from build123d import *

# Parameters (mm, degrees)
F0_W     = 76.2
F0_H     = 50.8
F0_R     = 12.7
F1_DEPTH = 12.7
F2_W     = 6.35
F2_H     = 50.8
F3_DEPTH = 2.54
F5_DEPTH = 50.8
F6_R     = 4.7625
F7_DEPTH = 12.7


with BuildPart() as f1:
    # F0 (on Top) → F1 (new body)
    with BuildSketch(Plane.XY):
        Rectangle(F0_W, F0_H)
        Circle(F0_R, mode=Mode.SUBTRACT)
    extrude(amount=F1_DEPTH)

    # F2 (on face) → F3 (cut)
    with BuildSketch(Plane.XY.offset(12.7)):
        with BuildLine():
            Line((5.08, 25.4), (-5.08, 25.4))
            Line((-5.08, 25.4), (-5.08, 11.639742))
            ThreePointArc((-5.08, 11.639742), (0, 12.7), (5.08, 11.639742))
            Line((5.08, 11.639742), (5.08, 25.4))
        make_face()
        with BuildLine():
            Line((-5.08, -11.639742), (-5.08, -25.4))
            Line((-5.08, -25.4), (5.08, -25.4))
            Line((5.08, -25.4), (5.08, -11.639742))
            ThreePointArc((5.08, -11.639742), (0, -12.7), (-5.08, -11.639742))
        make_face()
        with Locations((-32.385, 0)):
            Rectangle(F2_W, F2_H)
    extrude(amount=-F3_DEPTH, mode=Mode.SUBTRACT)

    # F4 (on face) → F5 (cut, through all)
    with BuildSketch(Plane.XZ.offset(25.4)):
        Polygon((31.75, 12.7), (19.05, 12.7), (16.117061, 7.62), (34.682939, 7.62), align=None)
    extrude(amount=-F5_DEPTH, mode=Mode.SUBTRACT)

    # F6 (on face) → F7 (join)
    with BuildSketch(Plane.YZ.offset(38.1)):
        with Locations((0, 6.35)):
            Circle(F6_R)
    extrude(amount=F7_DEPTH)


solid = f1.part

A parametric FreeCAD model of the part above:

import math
import FreeCAD as App
import Part
import Sketcher
Q = App.Units.Quantity

doc = App.newDocument("Part")
body = doc.addObject("PartDesign::Body", "Body")

# Sketch on XY plane
sketch1 = body.newObject("Sketcher::SketchObject", "Sketch")
sketch1.AttachmentSupport = (doc.getObject("XY_Plane"), [""])
sketch1.MapMode = "FlatFace"
sketch1.addGeometry(Part.LineSegment(App.Vector(-38, 25, 0), App.Vector(-38, -25, 0)), False)
sketch1.addGeometry(Part.LineSegment(App.Vector(-38, -25, 0), App.Vector(38, -25, 0)), False)
sketch1.addGeometry(Part.LineSegment(App.Vector(38, -25, 0), App.Vector(38, 25, 0)), False)
sketch1.addGeometry(Part.LineSegment(App.Vector(38, 25, 0), App.Vector(-38, 25, 0)), False)
sketch1.addGeometry(Part.Circle(App.Vector(0, 0, 0), App.Vector(0, 0, 1), 13), False)
sketch1.addConstraint(Sketcher.Constraint("Coincident", 0, 2, 1, 1))
sketch1.addConstraint(Sketcher.Constraint("Coincident", 1, 2, 2, 1))
sketch1.addConstraint(Sketcher.Constraint("Coincident", 2, 2, 3, 1))
sketch1.addConstraint(Sketcher.Constraint("Coincident", 3, 2, 0, 1))
sketch1.addConstraint(Sketcher.Constraint("Vertical", 0))
sketch1.addConstraint(Sketcher.Constraint("Horizontal", 1))
sketch1.addConstraint(Sketcher.Constraint("Vertical", 2))
sketch1.addConstraint(Sketcher.Constraint("Horizontal", 3))
sketch1.addConstraint(Sketcher.Constraint("Coincident", 4, 3, -1, 1))
sketch1.addConstraint(Sketcher.Constraint("Symmetric", 0, 2, 2, 2, -1, 1))
sketch1.addConstraint(Sketcher.Constraint("Diameter", 4, Q("1 in")))
sketch1.addConstraint(Sketcher.Constraint("DistanceX", 1, 1, 1, 2, Q("3 in")))
sketch1.addConstraint(Sketcher.Constraint("DistanceY", 0, 2, 0, 1, Q("2 in")))
pad1 = body.newObject("PartDesign::Pad", "Pad")
pad1.Profile = sketch1
pad1.Length = Q("0.5 in")

# Sketch on XY plane
sketch2 = body.newObject("Sketcher::SketchObject", "Sketch001")
sketch2.AttachmentSupport = (doc.getObject("XY_Plane"), [""])
sketch2.MapMode = "FlatFace"
sketch2.AttachmentOffset = App.Placement(App.Vector(0, 0, 0.5 * 25.4), App.Rotation())
sketch2.addGeometry(Part.LineSegment(App.Vector(5, 25, 0), App.Vector(-5, 25, 0)), False)
sketch2.addGeometry(Part.LineSegment(App.Vector(-5, 25, 0), App.Vector(-5, 12, 0)), False)
sketch2.addGeometry(Part.ArcOfCircle(Part.Circle(App.Vector(0, 0, 0), App.Vector(0, 0, 1), 13), math.radians(66), math.radians(114)), False)
sketch2.addGeometry(Part.LineSegment(App.Vector(5, 12, 0), App.Vector(5, 25, 0)), False)
sketch2.addGeometry(Part.LineSegment(App.Vector(-5, -12, 0), App.Vector(-5, -25, 0)), False)
sketch2.addGeometry(Part.LineSegment(App.Vector(-5, -25, 0), App.Vector(5, -25, 0)), False)
sketch2.addGeometry(Part.LineSegment(App.Vector(5, -25, 0), App.Vector(5, -12, 0)), False)
sketch2.addGeometry(Part.ArcOfCircle(Part.Circle(App.Vector(0, 0, 0), App.Vector(0, 0, 1), 13), math.radians(-114), math.radians(-66)), False)
sketch2.addGeometry(Part.LineSegment(App.Vector(-36, 25, 0), App.Vector(-36, -25, 0)), False)
sketch2.addGeometry(Part.LineSegment(App.Vector(-36, -25, 0), App.Vector(-29, -25, 0)), False)
sketch2.addGeometry(Part.LineSegment(App.Vector(-29, -25, 0), App.Vector(-29, 25, 0)), False)
sketch2.addGeometry(Part.LineSegment(App.Vector(-29, 25, 0), App.Vector(-36, 25, 0)), False)
sketch2.addConstraint(Sketcher.Constraint("Coincident", 0, 2, 1, 1))
sketch2.addConstraint(Sketcher.Constraint("Coincident", 1, 2, 2, 2))
sketch2.addConstraint(Sketcher.Constraint("Coincident", 2, 1, 3, 1))
sketch2.addConstraint(Sketcher.Constraint("Coincident", 3, 2, 0, 1))
sketch2.addConstraint(Sketcher.Constraint("Coincident", 4, 2, 5, 1))
sketch2.addConstraint(Sketcher.Constraint("Coincident", 5, 2, 6, 1))
sketch2.addConstraint(Sketcher.Constraint("Coincident", 6, 2, 7, 2))
sketch2.addConstraint(Sketcher.Constraint("Coincident", 7, 1, 4, 1))
sketch2.addConstraint(Sketcher.Constraint("Coincident", 8, 2, 9, 1))
sketch2.addConstraint(Sketcher.Constraint("Coincident", 9, 2, 10, 1))
sketch2.addConstraint(Sketcher.Constraint("Coincident", 10, 2, 11, 1))
sketch2.addConstraint(Sketcher.Constraint("Coincident", 11, 2, 8, 1))
sketch2.addConstraint(Sketcher.Constraint("Horizontal", 0))
sketch2.addConstraint(Sketcher.Constraint("Vertical", 1))
sketch2.addConstraint(Sketcher.Constraint("Vertical", 3))
sketch2.addConstraint(Sketcher.Constraint("Vertical", 4))
sketch2.addConstraint(Sketcher.Constraint("Horizontal", 5))
sketch2.addConstraint(Sketcher.Constraint("Vertical", 6))
sketch2.addConstraint(Sketcher.Constraint("Vertical", 8))
sketch2.addConstraint(Sketcher.Constraint("Horizontal", 9))
sketch2.addConstraint(Sketcher.Constraint("Vertical", 10))
sketch2.addConstraint(Sketcher.Constraint("Horizontal", 11))
sketch2.addConstraint(Sketcher.Constraint("Coincident", 2, 3, -1, 1))
sketch2.addConstraint(Sketcher.Constraint("Coincident", 7, 3, -1, 1))
sketch2.addConstraint(Sketcher.Constraint("Equal", 2, 7))
sketch2.addConstraint(Sketcher.Constraint("Symmetric", 3, 2, 4, 2, -1, 1))
sketch2.addConstraint(Sketcher.Constraint("Horizontal", 1, 2, 2, 1))
sketch2.addConstraint(Sketcher.Constraint("Horizontal", 6, 2, 7, 1))
sketch2.addConstraint(Sketcher.Constraint("Horizontal", 5, 2, 8, 2))
sketch2.addConstraint(Sketcher.Constraint("Horizontal", 3, 2, 10, 2))
sketch2.addConstraint(Sketcher.Constraint("Radius", 2, Q("0.4999999 in")))
sketch2.addConstraint(Sketcher.Constraint("DistanceY", 8, 2, 8, 1, Q("2 in")))
sketch2.addConstraint(Sketcher.Constraint("DistanceX", 0, 2, 0, 1, Q("0.4 in")))
sketch2.addConstraint(Sketcher.Constraint("DistanceX", 9, 1, 9, 2, Q("0.25 in")))
sketch2.addConstraint(Sketcher.Constraint("DistanceX", 8, 2, -1, 1, Q("1.4 in")))
pocket1 = body.newObject("PartDesign::Pocket", "Pocket")
pocket1.Profile = sketch2
pocket1.Length = Q("0.1 in")

# Sketch on XZ plane
sketch3 = body.newObject("Sketcher::SketchObject", "Sketch002")
sketch3.AttachmentSupport = (doc.getObject("XZ_Plane"), [""])
sketch3.MapMode = "FlatFace"
sketch3.AttachmentOffset = App.Placement(App.Vector(0, 0, 1 * 25.4), App.Rotation())
sketch3.addGeometry(Part.LineSegment(App.Vector(32, 13, 0), App.Vector(19, 13, 0)), False)
sketch3.addGeometry(Part.LineSegment(App.Vector(19, 13, 0), App.Vector(16, 8, 0)), False)
sketch3.addGeometry(Part.LineSegment(App.Vector(16, 8, 0), App.Vector(35, 8, 0)), False)
sketch3.addGeometry(Part.LineSegment(App.Vector(35, 8, 0), App.Vector(32, 13, 0)), False)
sketch3.addConstraint(Sketcher.Constraint("Coincident", 0, 2, 1, 1))
sketch3.addConstraint(Sketcher.Constraint("Coincident", 1, 2, 2, 1))
sketch3.addConstraint(Sketcher.Constraint("Coincident", 2, 2, 3, 1))
sketch3.addConstraint(Sketcher.Constraint("Coincident", 3, 2, 0, 1))
sketch3.addConstraint(Sketcher.Constraint("Horizontal", 0))
sketch3.addConstraint(Sketcher.Constraint("Horizontal", 2))
sketch3.addConstraint(Sketcher.Constraint("Equal", 1, 3))
sketch3.addConstraint(Sketcher.Constraint("DistanceX", 0, 2, 0, 1, Q("0.5 in")))
sketch3.addConstraint(Sketcher.Constraint("Angle", 1, Q("-119.999997 deg")))
sketch3.addConstraint(Sketcher.Constraint("DistanceY", -1, 1, 0, 2, Q("0.5 in")))
sketch3.addConstraint(Sketcher.Constraint("DistanceY", -1, 1, 1, 2, Q("0.3 in")))
sketch3.addConstraint(Sketcher.Constraint("DistanceX", -1, 1, 0, 2, Q("0.75 in")))
pocket2 = body.newObject("PartDesign::Pocket", "Pocket001")
pocket2.Profile = sketch3
pocket2.Type = "ThroughAll"

# Sketch on YZ plane
sketch4 = body.newObject("Sketcher::SketchObject", "Sketch003")
sketch4.AttachmentSupport = (doc.getObject("YZ_Plane"), [""])
sketch4.MapMode = "FlatFace"
sketch4.AttachmentOffset = App.Placement(App.Vector(0, 0, 1.5 * 25.4), App.Rotation())
sketch4.addGeometry(Part.Circle(App.Vector(0, 6.3, 0), App.Vector(0, 0, 1), 4.8), False)
sketch4.addConstraint(Sketcher.Constraint("PointOnObject", 0, 3, -2))
sketch4.addConstraint(Sketcher.Constraint("Diameter", 0, Q("0.375 in")))
sketch4.addConstraint(Sketcher.Constraint("DistanceY", -1, 1, 0, 3, Q("0.25 in")))
pad2 = body.newObject("PartDesign::Pad", "Pad001")
pad2.Profile = sketch4
pad2.Length = Q("0.5 in")

doc.recompute()
